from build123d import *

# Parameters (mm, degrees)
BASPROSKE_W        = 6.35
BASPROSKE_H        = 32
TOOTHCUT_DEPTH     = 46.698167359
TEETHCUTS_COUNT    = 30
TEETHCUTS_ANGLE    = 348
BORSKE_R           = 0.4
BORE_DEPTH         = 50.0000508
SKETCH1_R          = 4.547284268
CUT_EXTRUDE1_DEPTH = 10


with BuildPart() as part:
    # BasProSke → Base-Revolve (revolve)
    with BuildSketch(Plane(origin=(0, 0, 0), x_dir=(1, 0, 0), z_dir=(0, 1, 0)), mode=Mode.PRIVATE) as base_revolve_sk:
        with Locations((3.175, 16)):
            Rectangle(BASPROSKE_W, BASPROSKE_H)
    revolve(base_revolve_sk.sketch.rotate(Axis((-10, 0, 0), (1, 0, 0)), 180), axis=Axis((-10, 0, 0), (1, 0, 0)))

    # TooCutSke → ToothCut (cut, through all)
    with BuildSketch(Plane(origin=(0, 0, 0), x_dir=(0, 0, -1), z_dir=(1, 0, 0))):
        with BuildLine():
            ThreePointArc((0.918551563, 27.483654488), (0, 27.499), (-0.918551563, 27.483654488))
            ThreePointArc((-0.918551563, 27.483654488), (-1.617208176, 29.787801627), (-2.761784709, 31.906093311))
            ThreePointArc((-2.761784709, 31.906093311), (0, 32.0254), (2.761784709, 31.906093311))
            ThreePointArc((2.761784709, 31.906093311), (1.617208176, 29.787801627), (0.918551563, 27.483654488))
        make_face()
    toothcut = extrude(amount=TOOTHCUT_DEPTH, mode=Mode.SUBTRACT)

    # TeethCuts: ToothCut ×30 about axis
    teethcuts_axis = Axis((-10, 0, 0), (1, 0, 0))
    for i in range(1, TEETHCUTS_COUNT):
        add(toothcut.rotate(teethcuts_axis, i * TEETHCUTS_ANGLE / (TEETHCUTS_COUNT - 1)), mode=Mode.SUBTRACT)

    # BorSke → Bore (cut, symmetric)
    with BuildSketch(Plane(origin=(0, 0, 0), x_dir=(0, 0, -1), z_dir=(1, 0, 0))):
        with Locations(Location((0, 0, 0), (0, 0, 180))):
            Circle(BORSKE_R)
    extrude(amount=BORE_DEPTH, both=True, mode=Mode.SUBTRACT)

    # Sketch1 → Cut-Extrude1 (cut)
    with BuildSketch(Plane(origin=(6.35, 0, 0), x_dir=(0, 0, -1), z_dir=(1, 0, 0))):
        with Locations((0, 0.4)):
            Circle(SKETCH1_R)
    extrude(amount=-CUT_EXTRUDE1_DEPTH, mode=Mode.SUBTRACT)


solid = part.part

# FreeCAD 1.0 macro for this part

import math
import FreeCAD as App
import Part
import Sketcher
from FreeCAD import Vector
Q = App.Units.Quantity

doc = App.newDocument("Part")
params = doc.addObject("Spreadsheet::Sheet", "Params")
for row, (alias, value) in enumerate([
    ("sketch1_height", "32 mm"),
    ("sketch1_width", "6.35 mm"),
    ("revolution_angle", "360 deg"),
    ("sketch2_radius", "12 mm"),
    ("sketch3_diameter", "0.8 mm"),
    ("pocket2_length", "100.000102 mm"),
    ("pocket3_length", "10 mm"),
], start=1):
    params.set(f"A{row}", alias)
    params.set(f"B{row}", "=" + value)
    params.setAlias(f"B{row}", alias)

body = doc.addObject("PartDesign::Body", "Body")

# Sketch on XZ plane
sketch1 = doc.addObject("Sketcher::SketchObject", "Sketch")
body.addObject(sketch1)
sketch1.AttachmentSupport = (doc.XZ_Plane, [""])
sketch1.MapMode = "FlatFace"
sketch1.addGeometry(Part.LineSegment(Vector(0, -32, 0), Vector(0, 0, 0)), False)
sketch1.addGeometry(Part.LineSegment(Vector(0, 0, 0), Vector(6.35, 0, 0)), False)
sketch1.addGeometry(Part.LineSegment(Vector(6.35, 0, 0), Vector(6.35, -32, 0)), False)
sketch1.addGeometry(Part.LineSegment(Vector(6.35, -32, 0), Vector(0, -32, 0)), False)
sketch1.addConstraint(Sketcher.Constraint("Coincident", 0, 2, 1, 1))
sketch1.addConstraint(Sketcher.Constraint("Coincident", 1, 2, 2, 1))
sketch1.addConstraint(Sketcher.Constraint("Coincident", 2, 2, 3, 1))
sketch1.addConstraint(Sketcher.Constraint("Coincident", 3, 2, 0, 1))
sketch1.addConstraint(Sketcher.Constraint("Vertical", 0))
sketch1.addConstraint(Sketcher.Constraint("Horizontal", 1))
sketch1.addConstraint(Sketcher.Constraint("Vertical", 2))
sketch1.addConstraint(Sketcher.Constraint("Horizontal", 3))
sketch1.addConstraint(Sketcher.Constraint("Coincident", 0, 2, -1, 1))
sketch1.addConstraint(Sketcher.Constraint("DistanceY", 0, 1, 0, 2, Q("32 mm")))
sketch1.addConstraint(Sketcher.Constraint("DistanceX", 1, 1, 1, 2, Q("6.35 mm")))
sketch1.setExpression("Constraints[9]", "Params.sketch1_height")
sketch1.setExpression("Constraints[10]", "Params.sketch1_width")
revolution = doc.addObject("PartDesign::Revolution", "Revolution")
body.addObject(revolution)
revolution.Profile = sketch1
revolution.ReferenceAxis = (sketch1, ["H_Axis"])
revolution.setExpression("Angle", "Params.revolution_angle")

# Sketch on YZ plane
sketch2 = doc.addObject("Sketcher::SketchObject", "Sketch001")
body.addObject(sketch2)
sketch2.AttachmentSupport = (doc.YZ_Plane, [""])
sketch2.MapMode = "FlatFace"
sketch2.addGeometry(Part.ArcOfCircle(Part.Circle(Vector(0, 0, 0), Vector(0, 0, 1), 27.499), math.radians(-1.914212), math.radians(1.914212)), False)
sketch2.addGeometry(Part.ArcOfCircle(Part.Circle(Vector(25.171243, -12.693642, 0), Vector(0, 0, 1), 12), math.radians(55.858574), math.radians(78.889547)), False)
sketch2.addGeometry(Part.ArcOfCircle(Part.Circle(Vector(0, 0, 0), Vector(0, 0, 1), 32.0254), math.radians(-4.947179), math.radians(4.947179)), False)
sketch2.addGeometry(Part.ArcOfCircle(Part.Circle(Vector(25.171243, 12.693642, 0), Vector(0, 0, 1), 12), math.radians(-78.889547), math.radians(-55.858574)), False)
sketch2.addConstraint(Sketcher.Constraint("Coincident", 0, 1, 1, 2))
sketch2.addConstraint(Sketcher.Constraint("Coincident", 1, 1, 2, 1))
sketch2.addConstraint(Sketcher.Constraint("Coincident", 2, 2, 3, 2))
sketch2.addConstraint(Sketcher.Constraint("Coincident", 3, 1, 0, 2))
sketch2.addConstraint(Sketcher.Constraint("Coincident", 0, 3, -1, 1))
sketch2.addConstraint(Sketcher.Constraint("Coincident", 2, 3, -1, 1))
sketch2.addConstraint(Sketcher.Constraint("Equal", 1, 3))
sketch2.addConstraint(Sketcher.Constraint("Symmetric", 1, 3, 3, 3, -1))
sketch2.addConstraint(Sketcher.Constraint("Radius", 1, Q("12 mm")))
sketch2.addConstraint(Sketcher.Constraint("Radius", 0, Q("27.499 mm")))
sketch2.addConstraint(Sketcher.Constraint("Radius", 2, Q("32.0254 mm")))
sketch2.addConstraint(Sketcher.Constraint("DistanceY", 1, 3, -1, 1, Q("12.693642 mm")))
sketch2.addConstraint(Sketcher.Constraint("DistanceY", 0, 1, -1, 1, Q("0.918552 mm")))
sketch2.setExpression("Constraints[8]", "Params.sketch2_radius")
pocket1 = doc.addObject("PartDesign::Pocket", "Pocket")
body.addObject(pocket1)
pocket1.Profile = sketch2
pocket1.Type = "ThroughAll"
pocket1.Reversed = True
doc.recompute()

polarpattern = doc.addObject("PartDesign::PolarPattern", "PolarPattern")
body.addObject(polarpattern)
polarpattern.Originals = [pocket1]
polarpattern.Axis = (doc.X_Axis, [""])
polarpattern.Angle = 360
polarpattern.Occurrences = 30
body.Tip = polarpattern

# Sketch on YZ plane
sketch3 = doc.addObject("Sketcher::SketchObject", "Sketch002")
body.addObject(sketch3)
sketch3.AttachmentSupport = (doc.YZ_Plane, [""])
sketch3.MapMode = "FlatFace"
sketch3.addGeometry(Part.Circle(Vector(0, 0, 0), Vector(0, 0, 1), 0.4), False)
sketch3.addConstraint(Sketcher.Constraint("Coincident", 0, 3, -1, 1))
sketch3.addConstraint(Sketcher.Constraint("Diameter", 0, Q("0.8 mm")))
sketch3.setExpression("Constraints[1]", "Params.sketch3_diameter")
pocket2 = doc.addObject("PartDesign::Pocket", "Pocket001")
body.addObject(pocket2)
pocket2.Profile = sketch3
pocket2.setExpression("Length", "Params.pocket2_length")
pocket2.Midplane = True

# Sketch on YZ plane
sketch4 = doc.addObject("Sketcher::SketchObject", "Sketch003")
body.addObject(sketch4)
sketch4.AttachmentSupport = (doc.YZ_Plane, [""])
sketch4.MapMode = "FlatFace"
sketch4.AttachmentOffset = App.Placement(Vector(0, 0, 6.35), App.Rotation())
sketch4.addGeometry(Part.Circle(Vector(0.4, 0, 0), Vector(0, 0, 1), 4.547284), False)
sketch4.addConstraint(Sketcher.Constraint("PointOnObject", 0, 3, -1))
sketch4.addConstraint(Sketcher.Constraint("DistanceX", -1, 1, 0, 3, Q("0.4 mm")))
sketch4.addConstraint(Sketcher.Constraint("Diameter", 0, Q("9.094569 mm")))
pocket3 = doc.addObject("PartDesign::Pocket", "Pocket002")
body.addObject(pocket3)
pocket3.Profile = sketch4
pocket3.setExpression("Length", "Params.pocket3_length")

doc.recompute()
